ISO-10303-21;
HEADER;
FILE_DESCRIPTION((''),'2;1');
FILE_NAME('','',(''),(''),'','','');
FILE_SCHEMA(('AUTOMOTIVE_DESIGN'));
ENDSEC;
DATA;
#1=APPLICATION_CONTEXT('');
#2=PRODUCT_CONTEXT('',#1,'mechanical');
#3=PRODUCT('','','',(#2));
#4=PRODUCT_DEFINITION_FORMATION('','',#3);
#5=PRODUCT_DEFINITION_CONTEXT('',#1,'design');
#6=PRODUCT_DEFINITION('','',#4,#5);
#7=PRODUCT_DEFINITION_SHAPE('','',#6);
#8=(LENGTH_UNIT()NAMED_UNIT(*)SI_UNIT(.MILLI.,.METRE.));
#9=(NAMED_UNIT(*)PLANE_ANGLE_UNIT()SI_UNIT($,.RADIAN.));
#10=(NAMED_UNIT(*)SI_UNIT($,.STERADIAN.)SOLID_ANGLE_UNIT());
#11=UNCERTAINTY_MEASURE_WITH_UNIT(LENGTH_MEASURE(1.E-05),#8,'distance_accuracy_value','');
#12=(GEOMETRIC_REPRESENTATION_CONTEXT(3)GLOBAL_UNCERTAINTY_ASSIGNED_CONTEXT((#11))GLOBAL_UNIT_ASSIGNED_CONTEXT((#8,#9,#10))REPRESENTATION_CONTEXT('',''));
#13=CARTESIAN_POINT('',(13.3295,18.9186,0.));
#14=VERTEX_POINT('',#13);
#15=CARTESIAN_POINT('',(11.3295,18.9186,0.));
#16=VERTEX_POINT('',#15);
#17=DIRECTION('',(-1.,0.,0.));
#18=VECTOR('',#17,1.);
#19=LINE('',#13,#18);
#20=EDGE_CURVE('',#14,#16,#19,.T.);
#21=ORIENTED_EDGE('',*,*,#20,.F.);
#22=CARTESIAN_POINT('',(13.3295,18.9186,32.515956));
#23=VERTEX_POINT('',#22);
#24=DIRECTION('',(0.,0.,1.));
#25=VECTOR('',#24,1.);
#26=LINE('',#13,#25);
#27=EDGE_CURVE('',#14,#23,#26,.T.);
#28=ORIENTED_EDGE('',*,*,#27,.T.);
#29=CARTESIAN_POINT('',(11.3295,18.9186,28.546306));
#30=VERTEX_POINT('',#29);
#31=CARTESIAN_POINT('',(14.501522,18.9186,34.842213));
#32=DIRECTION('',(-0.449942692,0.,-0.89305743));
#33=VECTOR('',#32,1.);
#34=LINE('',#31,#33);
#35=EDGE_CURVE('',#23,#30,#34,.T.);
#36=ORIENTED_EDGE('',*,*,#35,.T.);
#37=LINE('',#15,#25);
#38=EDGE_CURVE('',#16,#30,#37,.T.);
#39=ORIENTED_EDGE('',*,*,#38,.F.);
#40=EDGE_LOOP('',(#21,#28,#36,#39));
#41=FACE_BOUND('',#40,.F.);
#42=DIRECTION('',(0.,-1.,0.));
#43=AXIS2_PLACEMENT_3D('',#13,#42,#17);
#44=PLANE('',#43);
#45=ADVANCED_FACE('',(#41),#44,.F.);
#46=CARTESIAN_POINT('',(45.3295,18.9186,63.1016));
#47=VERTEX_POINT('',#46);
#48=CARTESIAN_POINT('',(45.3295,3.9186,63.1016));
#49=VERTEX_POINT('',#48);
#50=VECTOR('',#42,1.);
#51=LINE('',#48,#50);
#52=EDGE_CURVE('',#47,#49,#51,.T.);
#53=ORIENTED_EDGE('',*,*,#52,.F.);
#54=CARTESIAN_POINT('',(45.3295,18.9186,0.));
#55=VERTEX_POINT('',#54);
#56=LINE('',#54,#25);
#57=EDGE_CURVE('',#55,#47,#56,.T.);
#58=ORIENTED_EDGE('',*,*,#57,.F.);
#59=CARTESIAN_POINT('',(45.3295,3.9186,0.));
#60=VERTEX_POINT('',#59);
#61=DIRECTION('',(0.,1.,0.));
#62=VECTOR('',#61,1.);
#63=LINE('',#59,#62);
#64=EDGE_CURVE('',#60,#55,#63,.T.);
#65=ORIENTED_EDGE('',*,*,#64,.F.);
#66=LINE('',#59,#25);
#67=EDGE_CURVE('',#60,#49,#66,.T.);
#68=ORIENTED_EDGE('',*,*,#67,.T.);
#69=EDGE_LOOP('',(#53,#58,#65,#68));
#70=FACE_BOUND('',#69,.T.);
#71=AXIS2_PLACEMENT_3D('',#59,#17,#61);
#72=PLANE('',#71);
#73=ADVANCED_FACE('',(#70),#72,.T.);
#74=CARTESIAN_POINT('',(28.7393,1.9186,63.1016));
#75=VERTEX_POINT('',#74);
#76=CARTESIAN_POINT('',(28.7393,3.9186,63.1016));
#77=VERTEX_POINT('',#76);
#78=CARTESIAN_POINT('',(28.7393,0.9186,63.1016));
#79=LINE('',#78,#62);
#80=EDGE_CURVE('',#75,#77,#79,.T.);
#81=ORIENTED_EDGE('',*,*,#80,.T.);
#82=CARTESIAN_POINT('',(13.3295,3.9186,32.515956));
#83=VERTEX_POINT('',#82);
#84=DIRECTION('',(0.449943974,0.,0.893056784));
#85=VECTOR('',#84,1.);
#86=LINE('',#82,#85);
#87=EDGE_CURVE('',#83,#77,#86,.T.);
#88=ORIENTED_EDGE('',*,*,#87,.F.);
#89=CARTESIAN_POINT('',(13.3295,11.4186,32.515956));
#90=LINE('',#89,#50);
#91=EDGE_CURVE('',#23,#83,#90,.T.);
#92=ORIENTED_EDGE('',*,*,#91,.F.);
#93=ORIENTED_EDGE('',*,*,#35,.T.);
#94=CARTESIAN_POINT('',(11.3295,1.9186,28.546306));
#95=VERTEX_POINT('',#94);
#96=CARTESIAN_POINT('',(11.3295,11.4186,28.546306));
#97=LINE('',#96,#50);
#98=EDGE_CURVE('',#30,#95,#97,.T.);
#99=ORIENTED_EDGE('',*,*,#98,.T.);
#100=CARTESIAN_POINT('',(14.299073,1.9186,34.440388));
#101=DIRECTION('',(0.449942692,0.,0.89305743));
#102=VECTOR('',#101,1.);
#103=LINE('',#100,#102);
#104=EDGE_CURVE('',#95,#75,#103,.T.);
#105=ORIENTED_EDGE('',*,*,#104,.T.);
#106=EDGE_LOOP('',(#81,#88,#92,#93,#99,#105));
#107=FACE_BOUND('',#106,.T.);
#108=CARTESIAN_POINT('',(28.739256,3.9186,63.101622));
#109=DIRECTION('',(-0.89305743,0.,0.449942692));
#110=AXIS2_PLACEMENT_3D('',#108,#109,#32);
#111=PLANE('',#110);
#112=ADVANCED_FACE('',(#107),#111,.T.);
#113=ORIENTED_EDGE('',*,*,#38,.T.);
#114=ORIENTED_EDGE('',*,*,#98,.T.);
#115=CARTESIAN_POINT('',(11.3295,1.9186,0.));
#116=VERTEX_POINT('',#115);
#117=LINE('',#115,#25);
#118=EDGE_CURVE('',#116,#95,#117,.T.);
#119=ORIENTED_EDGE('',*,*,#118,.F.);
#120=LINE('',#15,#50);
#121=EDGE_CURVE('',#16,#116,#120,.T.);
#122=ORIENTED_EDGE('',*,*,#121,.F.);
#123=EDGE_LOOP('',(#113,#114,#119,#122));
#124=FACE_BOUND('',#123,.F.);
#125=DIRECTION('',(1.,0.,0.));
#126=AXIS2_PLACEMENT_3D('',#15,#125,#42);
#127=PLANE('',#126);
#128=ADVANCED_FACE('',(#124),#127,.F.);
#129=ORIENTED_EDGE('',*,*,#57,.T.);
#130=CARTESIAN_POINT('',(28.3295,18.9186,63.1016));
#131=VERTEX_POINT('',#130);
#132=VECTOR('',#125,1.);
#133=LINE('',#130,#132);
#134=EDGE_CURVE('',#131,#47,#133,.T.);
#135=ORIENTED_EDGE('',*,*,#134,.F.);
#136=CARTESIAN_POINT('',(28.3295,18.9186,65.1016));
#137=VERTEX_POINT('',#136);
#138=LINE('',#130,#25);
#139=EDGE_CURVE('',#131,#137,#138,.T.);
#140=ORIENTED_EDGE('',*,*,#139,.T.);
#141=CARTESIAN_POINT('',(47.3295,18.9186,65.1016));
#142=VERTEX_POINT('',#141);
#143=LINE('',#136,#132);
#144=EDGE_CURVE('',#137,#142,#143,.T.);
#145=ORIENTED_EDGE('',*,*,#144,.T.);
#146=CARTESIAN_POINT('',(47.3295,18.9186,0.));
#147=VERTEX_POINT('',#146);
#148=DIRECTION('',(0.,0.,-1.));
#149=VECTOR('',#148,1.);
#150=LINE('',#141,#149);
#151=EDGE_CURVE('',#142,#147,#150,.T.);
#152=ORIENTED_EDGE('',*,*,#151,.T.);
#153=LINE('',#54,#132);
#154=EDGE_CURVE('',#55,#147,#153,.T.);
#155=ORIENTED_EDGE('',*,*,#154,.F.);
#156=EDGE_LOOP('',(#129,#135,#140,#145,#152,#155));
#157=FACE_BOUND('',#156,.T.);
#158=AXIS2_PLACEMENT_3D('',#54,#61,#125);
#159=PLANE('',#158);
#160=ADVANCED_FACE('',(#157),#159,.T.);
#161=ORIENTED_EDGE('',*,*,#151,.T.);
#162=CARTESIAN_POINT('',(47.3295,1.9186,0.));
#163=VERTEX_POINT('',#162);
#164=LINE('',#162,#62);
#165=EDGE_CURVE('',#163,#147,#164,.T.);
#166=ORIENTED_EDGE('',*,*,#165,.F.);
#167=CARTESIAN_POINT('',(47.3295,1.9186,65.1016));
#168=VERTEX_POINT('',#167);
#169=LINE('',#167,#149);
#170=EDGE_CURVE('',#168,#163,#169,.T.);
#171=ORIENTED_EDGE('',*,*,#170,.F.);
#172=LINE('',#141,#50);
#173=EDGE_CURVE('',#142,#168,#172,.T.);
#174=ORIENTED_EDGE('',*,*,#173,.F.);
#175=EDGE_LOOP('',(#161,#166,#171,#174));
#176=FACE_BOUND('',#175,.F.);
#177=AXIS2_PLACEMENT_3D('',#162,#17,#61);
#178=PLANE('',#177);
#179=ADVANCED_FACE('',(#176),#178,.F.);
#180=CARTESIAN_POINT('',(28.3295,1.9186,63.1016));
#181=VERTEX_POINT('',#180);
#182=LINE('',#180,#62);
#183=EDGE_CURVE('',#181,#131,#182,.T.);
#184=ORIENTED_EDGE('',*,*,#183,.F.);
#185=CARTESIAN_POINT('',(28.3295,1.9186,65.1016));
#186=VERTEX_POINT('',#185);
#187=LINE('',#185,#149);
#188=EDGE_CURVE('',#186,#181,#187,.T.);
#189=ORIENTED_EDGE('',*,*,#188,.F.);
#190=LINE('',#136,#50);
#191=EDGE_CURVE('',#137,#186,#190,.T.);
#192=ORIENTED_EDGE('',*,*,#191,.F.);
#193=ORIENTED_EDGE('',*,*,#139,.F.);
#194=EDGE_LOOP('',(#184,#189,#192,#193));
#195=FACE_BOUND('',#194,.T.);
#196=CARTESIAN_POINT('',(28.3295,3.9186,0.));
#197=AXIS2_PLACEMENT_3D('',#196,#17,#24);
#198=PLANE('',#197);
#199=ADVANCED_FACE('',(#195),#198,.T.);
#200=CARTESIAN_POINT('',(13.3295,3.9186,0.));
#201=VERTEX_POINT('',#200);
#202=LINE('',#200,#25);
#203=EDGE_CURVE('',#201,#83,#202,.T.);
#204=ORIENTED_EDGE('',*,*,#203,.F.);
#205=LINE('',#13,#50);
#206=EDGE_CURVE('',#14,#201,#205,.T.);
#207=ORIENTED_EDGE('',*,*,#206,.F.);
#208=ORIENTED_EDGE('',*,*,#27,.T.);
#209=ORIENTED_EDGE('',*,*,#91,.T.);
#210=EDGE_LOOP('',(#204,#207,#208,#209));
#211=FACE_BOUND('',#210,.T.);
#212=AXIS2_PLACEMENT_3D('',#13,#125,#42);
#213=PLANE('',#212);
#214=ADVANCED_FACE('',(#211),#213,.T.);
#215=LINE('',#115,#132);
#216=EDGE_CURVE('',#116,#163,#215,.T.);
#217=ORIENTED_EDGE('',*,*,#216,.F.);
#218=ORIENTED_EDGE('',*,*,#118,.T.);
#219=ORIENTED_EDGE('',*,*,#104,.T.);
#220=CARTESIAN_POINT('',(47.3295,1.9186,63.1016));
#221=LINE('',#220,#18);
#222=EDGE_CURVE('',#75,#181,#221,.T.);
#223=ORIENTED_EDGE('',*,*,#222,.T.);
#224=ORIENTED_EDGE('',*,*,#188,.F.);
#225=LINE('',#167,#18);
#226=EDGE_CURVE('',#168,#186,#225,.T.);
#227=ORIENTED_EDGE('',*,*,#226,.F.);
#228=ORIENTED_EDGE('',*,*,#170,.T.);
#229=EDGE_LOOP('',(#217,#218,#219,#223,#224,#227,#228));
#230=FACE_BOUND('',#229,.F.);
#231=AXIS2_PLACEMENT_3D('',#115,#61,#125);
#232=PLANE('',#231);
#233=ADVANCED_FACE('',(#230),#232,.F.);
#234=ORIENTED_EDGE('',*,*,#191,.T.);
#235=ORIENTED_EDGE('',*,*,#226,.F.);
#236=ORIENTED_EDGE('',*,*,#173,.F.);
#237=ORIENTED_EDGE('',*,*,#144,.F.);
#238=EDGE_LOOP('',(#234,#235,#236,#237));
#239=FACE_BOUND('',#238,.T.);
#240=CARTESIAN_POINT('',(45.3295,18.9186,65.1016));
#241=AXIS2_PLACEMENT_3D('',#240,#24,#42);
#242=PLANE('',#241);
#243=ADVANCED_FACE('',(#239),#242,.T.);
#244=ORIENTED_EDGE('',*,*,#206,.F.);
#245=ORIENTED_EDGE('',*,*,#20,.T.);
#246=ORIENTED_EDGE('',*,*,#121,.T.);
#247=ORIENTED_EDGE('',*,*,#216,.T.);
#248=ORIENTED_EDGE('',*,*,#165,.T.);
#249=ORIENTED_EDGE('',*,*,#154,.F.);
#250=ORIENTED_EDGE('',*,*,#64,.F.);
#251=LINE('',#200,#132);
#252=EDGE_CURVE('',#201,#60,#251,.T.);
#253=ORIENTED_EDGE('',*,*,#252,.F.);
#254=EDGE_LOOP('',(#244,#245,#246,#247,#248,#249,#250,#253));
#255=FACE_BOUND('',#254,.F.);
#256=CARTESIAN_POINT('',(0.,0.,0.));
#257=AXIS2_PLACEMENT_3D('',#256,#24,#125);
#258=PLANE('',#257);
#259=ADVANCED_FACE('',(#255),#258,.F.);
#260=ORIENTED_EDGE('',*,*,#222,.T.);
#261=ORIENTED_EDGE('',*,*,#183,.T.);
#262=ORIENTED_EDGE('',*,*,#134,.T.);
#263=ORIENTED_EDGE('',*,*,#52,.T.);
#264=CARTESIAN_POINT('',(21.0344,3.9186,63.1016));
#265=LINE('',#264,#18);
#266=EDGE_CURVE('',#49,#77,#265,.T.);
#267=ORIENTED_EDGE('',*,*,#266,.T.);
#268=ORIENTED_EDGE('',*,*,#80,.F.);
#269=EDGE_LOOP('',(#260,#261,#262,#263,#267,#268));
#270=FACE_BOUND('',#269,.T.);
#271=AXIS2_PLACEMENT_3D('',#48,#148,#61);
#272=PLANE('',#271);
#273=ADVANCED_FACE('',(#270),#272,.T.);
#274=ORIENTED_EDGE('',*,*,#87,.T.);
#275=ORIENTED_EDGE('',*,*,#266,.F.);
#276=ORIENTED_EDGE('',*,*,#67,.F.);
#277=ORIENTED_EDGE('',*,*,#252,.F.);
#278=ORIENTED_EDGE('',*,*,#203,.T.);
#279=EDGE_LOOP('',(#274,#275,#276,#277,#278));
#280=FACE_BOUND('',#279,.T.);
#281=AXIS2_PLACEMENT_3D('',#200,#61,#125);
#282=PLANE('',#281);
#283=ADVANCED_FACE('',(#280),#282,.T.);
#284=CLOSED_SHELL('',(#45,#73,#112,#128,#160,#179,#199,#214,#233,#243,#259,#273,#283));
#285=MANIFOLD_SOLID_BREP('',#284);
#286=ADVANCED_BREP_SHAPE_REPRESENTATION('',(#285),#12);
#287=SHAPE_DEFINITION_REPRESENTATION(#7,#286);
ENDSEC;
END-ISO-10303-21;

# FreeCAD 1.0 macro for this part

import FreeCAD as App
import Part
import Sketcher
from FreeCAD import Vector
Q = App.Units.Quantity

doc = App.newDocument("Part")
body = doc.addObject("PartDesign::Body", "Body")

sketch1 = body.newObject("Sketcher::SketchObject", "Sketch")
sketch1.AttachmentSupport = (doc.getObject("XY_Plane"), [""])
sketch1.MapMode = "FlatFace"
sketch1.addGeometry([
    Part.LineSegment(Vector(13.3, 3.9, 0), Vector(13.3, 18.9, 0)),
    Part.LineSegment(Vector(13.3, 18.9, 0), Vector(11.3, 18.9, 0)),
    Part.LineSegment(Vector(11.3, 18.9, 0), Vector(11.3, 1.9, 0)),
    Part.LineSegment(Vector(11.3, 1.9, 0), Vector(47.3, 1.9, 0)),
    Part.LineSegment(Vector(47.3, 1.9, 0), Vector(47.3, 18.9, 0)),
    Part.LineSegment(Vector(47.3, 18.9, 0), Vector(45.3, 18.9, 0)),
    Part.LineSegment(Vector(45.3, 18.9, 0), Vector(45.3, 3.9, 0)),
    Part.LineSegment(Vector(45.3, 3.9, 0), Vector(13.3, 3.9, 0)),
], False)
sketch1.addConstraint([
    Sketcher.Constraint("Coincident", 0, 2, 1, 1),
    Sketcher.Constraint("Coincident", 1, 2, 2, 1),
    Sketcher.Constraint("Coincident", 2, 2, 3, 1),
    Sketcher.Constraint("Coincident", 3, 2, 4, 1),
    Sketcher.Constraint("Coincident", 4, 2, 5, 1),
    Sketcher.Constraint("Coincident", 5, 2, 6, 1),
    Sketcher.Constraint("Coincident", 6, 2, 7, 1),
    Sketcher.Constraint("Coincident", 7, 2, 0, 1),
    Sketcher.Constraint("Vertical", 0),
    Sketcher.Constraint("Horizontal", 1),
    Sketcher.Constraint("Vertical", 2),
    Sketcher.Constraint("Horizontal", 3),
    Sketcher.Constraint("Vertical", 4),
    Sketcher.Constraint("Horizontal", 5),
    Sketcher.Constraint("Vertical", 6),
    Sketcher.Constraint("Horizontal", 7),
    Sketcher.Constraint("Horizontal", 1, 2, 4, 2),
    Sketcher.Constraint("Equal", 1, 5),
    Sketcher.Constraint("DistanceX", 1, 2, 1, 1, 2.0),
    Sketcher.Constraint("DistanceX", 7, 2, 7, 1, 32.0),
    Sketcher.Constraint("DistanceY", 0, 1, 0, 2, 15.0),
    Sketcher.Constraint("DistanceY", 3, 2, 6, 2, 2.0),
    Sketcher.Constraint("DistanceX", -1, 1, 0, 2, 13.3295),
    Sketcher.Constraint("DistanceY", -1, 1, 0, 2, 18.9186),
])
pad1 = body.newObject("PartDesign::Pad", "Pad")
pad1.Profile = sketch1
pad1.Length = 100

sketch2 = body.newObject("Sketcher::SketchObject", "Sketch001")
sketch2.AttachmentSupport = (doc.getObject("XZ_Plane"), [""])
sketch2.MapMode = "FlatFace"
sketch2.AttachmentOffset = App.Placement(Vector(0, 0, -3.9186), App.Rotation())
sketch2.addGeometry([
    Part.LineSegment(Vector(47, 100, 0), Vector(47, 63, 0)),
    Part.LineSegment(Vector(47, 63, 0), Vector(29, 63, 0)),
    Part.LineSegment(Vector(29, 63, 0), Vector(11, 28, 0)),
    Part.LineSegment(Vector(11, 28, 0), Vector(11, 100, 0)),
    Part.LineSegment(Vector(11, 100, 0), Vector(47, 100, 0)),
], False)
sketch2.addConstraint([
    Sketcher.Constraint("Coincident", 0, 2, 1, 1),
    Sketcher.Constraint("Coincident", 1, 2, 2, 1),
    Sketcher.Constraint("Coincident", 2, 2, 3, 1),
    Sketcher.Constraint("Coincident", 3, 2, 4, 1),
    Sketcher.Constraint("Coincident", 4, 2, 0, 1),
    Sketcher.Constraint("Vertical", 0),
    Sketcher.Constraint("Horizontal", 1),
    Sketcher.Constraint("Vertical", 3),
    Sketcher.Constraint("Horizontal", 4),
    Sketcher.Constraint("Distance", 2, 39.0),
    Sketcher.Constraint("Angle", 2, Q("-116.74 deg")),
    Sketcher.Constraint("DistanceY", -1, 1, 3, 2, 100.0),
    Sketcher.Constraint("DistanceX", 4, 1, 4, 2, 36.138),
    Sketcher.Constraint("DistanceY", 0, 2, 0, 1, 36.8984),
    Sketcher.Constraint("DistanceX", -1, 1, 0, 2, 47.3295),
])
pocket1 = body.newObject("PartDesign::Pocket", "Pocket")
pocket1.Profile = sketch2
pocket1.Type = "ThroughAll"
pocket1.Midplane = True

sketch3 = body.newObject("Sketcher::SketchObject", "Sketch002")
sketch3.AttachmentSupport = (doc.getObject("YZ_Plane"), [""])
sketch3.MapMode = "FlatFace"
sketch3.AttachmentOffset = App.Placement(Vector(0, 0, 45.3295), App.Rotation())
sketch3.addGeometry([
    Part.LineSegment(Vector(18.9, 63.1, 0), Vector(1.9, 63.1, 0)),
    Part.LineSegment(Vector(1.9, 63.1, 0), Vector(1.9, 65.1, 0)),
    Part.LineSegment(Vector(1.9, 65.1, 0), Vector(18.9, 65.1, 0)),
    Part.LineSegment(Vector(18.9, 65.1, 0), Vector(18.9, 63.1, 0)),
], False)
sketch3.addConstraint([
    Sketcher.Constraint("Coincident", 0, 2, 1, 1),
    Sketcher.Constraint("Coincident", 1, 2, 2, 1),
    Sketcher.Constraint("Coincident", 2, 2, 3, 1),
    Sketcher.Constraint("Coincident", 3, 2, 0, 1),
    Sketcher.Constraint("Horizontal", 0),
    Sketcher.Constraint("Vertical", 1),
    Sketcher.Constraint("Horizontal", 2),
    Sketcher.Constraint("Vertical", 3),
    Sketcher.Constraint("DistanceX", 0, 2, 0, 1, 17.0),
    Sketcher.Constraint("DistanceY", 1, 1, 1, 2, 2.0),
    Sketcher.Constraint("DistanceX", -1, 1, 0, 2, 1.9186),
    Sketcher.Constraint("DistanceY", -1, 1, 0, 2, 63.1016),
])
pad2 = body.newObject("PartDesign::Pad", "Pad001")
pad2.Profile = sketch3
pad2.Type = "TwoLengths"
pad2.Length = 17
pad2.Length2 = 2
pad2.Reversed = True

doc.recompute()
